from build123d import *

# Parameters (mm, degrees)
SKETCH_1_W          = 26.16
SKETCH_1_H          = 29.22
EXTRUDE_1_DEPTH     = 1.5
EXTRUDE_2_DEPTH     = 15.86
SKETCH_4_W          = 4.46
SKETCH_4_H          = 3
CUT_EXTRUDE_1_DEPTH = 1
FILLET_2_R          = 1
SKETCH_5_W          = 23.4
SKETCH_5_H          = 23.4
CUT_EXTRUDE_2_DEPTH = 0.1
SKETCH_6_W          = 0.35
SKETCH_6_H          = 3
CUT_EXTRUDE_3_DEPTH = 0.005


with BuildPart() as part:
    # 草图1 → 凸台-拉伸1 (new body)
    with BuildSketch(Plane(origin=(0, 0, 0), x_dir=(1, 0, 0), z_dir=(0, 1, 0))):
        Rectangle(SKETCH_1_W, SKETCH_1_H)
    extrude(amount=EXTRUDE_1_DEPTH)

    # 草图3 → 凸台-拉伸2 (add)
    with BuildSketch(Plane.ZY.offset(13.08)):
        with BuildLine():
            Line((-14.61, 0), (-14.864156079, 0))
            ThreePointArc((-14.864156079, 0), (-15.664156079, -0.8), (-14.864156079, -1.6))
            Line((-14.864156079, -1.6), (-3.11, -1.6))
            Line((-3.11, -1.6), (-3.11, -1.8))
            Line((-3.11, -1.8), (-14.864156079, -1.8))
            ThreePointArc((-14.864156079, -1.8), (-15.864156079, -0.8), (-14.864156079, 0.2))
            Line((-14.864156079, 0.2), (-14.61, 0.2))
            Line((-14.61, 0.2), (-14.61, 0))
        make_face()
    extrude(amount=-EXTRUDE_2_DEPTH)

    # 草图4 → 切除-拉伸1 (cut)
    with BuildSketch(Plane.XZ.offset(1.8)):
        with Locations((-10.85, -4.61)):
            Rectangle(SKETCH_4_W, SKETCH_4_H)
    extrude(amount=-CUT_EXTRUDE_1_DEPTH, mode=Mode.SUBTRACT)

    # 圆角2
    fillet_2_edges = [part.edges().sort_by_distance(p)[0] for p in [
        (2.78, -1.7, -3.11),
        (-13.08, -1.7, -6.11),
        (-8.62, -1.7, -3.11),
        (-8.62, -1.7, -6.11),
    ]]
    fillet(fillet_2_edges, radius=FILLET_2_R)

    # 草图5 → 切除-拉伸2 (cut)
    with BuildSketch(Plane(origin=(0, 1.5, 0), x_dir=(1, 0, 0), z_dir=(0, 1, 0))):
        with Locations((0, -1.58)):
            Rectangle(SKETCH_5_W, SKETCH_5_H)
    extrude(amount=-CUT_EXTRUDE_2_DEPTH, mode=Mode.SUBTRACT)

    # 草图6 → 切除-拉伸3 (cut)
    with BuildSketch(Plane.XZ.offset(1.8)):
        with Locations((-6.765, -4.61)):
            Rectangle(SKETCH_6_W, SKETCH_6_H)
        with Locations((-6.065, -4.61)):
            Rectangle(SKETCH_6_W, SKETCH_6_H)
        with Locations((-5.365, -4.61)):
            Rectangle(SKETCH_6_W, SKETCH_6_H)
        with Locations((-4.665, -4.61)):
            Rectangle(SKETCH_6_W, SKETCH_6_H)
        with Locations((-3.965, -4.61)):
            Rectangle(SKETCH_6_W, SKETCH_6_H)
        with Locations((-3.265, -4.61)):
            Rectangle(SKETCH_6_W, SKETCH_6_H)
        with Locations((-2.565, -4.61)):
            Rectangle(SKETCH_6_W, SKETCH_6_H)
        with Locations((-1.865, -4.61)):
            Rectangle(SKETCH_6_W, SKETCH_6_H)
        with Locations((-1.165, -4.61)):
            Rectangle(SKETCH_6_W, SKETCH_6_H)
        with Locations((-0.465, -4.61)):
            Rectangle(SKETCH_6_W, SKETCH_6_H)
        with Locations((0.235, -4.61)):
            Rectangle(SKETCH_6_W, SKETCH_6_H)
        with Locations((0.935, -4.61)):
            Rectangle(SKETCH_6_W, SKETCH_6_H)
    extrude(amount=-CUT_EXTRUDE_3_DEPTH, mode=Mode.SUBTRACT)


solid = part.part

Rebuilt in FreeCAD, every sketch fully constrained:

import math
import FreeCAD as App
import Part
import Sketcher
from FreeCAD import Vector
Q = App.Units.Quantity


def edges_at(feature, points):
    """Names of the edges that pass closest to the given points."""
    edges = feature.Shape.Edges
    near = lambda p: min(range(len(edges)), key=lambda i: edges[i].distToShape(Part.Vertex(*p))[0])
    return sorted({f"Edge{near(p) + 1}" for p in points})


def add_polygon(sketch, points):
    """Adds a closed chain of lines whose ends are joined by coincident constraints."""
    first, n = sketch.GeometryCount, len(points)
    for a, b in zip(points, points[1:] + points[:1]):
        sketch.addGeometry(Part.LineSegment(App.Vector(*a, 0), App.Vector(*b, 0)), False)
    for i in range(n):
        sketch.addConstraint(Sketcher.Constraint("Coincident", first + i, 2, first + (i + 1) % n, 1))

doc = App.newDocument("Part")
body = doc.addObject("PartDesign::Body", "Body")

# Sketch on XZ plane
sketch1 = doc.addObject("Sketcher::SketchObject", "Sketch")
body.addObject(sketch1)
sketch1.AttachmentSupport = (doc.XZ_Plane, [""])
sketch1.MapMode = "FlatFace"
add_polygon(sketch1, [(-13, -15), (-13, 15), (13, 15), (13, -15)])  # lines 0-3
sketch1.addConstraint([
    Sketcher.Constraint("Vertical", 0),
    Sketcher.Constraint("Horizontal", 1),
    Sketcher.Constraint("Vertical", 2),
    Sketcher.Constraint("Horizontal", 3),
    Sketcher.Constraint("Symmetric", 0, 2, 2, 2, -1, 1),
    Sketcher.Constraint("DistanceX", 1, 1, 1, 2, Q("26.16 mm")),
    Sketcher.Constraint("DistanceY", 0, 1, 0, 2, Q("29.22 mm")),
])
pad1 = doc.addObject("PartDesign::Pad", "Pad")
body.addObject(pad1)
pad1.Profile = sketch1
pad1.Length = 1.5
pad1.Reversed = True

# Sketch on YZ plane
sketch2 = doc.addObject("Sketcher::SketchObject", "Sketch001")
body.addObject(sketch2)
sketch2.AttachmentSupport = (doc.YZ_Plane, [""])
sketch2.MapMode = "FlatFace"
sketch2.AttachmentOffset = App.Placement(Vector(0, 0, -13.08), App.Rotation())
sketch2.addGeometry([
    Part.LineSegment(Vector(0, -14.86, 0), Vector(0, -14.61, 0)),  # 0
    Part.LineSegment(Vector(0, -14.61, 0), Vector(0.2, -14.61, 0)),  # 1
    Part.LineSegment(Vector(0.2, -14.61, 0), Vector(0.2, -14.86, 0)),  # 2
    Part.ArcOfCircle(Part.Circle(Vector(-0.8, -14.86, 0), Vector(0, 0, 1), 1), math.radians(180), math.radians(360)),  # 3
    Part.LineSegment(Vector(-1.8, -14.86, 0), Vector(-1.8, -3.11, 0)),  # 4
    Part.LineSegment(Vector(-1.8, -3.11, 0), Vector(-1.6, -3.11, 0)),  # 5
    Part.LineSegment(Vector(-1.6, -3.11, 0), Vector(-1.6, -14.86, 0)),  # 6
    Part.ArcOfCircle(Part.Circle(Vector(-0.8, -14.86, 0), Vector(0, 0, 1), 0.8), math.radians(180), math.radians(360)),  # 7
], False)
sketch2.addConstraint([
    Sketcher.Constraint("Coincident", 0, 2, 1, 1),
    Sketcher.Constraint("Coincident", 1, 2, 2, 1),
    Sketcher.Constraint("Tangent", 2, 2, 3, 2),
    Sketcher.Constraint("Tangent", 3, 1, 4, 1),
    Sketcher.Constraint("Coincident", 4, 2, 5, 1),
    Sketcher.Constraint("Coincident", 5, 2, 6, 1),
    Sketcher.Constraint("Tangent", 6, 2, 7, 1),
    Sketcher.Constraint("Tangent", 7, 2, 0, 1),
    Sketcher.Constraint("Vertical", 0),
    Sketcher.Constraint("Horizontal", 1),
    Sketcher.Constraint("Vertical", 2),
    Sketcher.Constraint("Vertical", 4),
    Sketcher.Constraint("Horizontal", 5),
    Sketcher.Constraint("Vertical", 6),
    Sketcher.Constraint("Coincident", 7, 3, 3, 3),
    Sketcher.Constraint("PointOnObject", 0, 2, -2),
    Sketcher.Constraint("Radius", 3, Q("1 mm")),
    Sketcher.Constraint("Radius", 7, Q("0.8 mm")),
    Sketcher.Constraint("DistanceY", 0, 2, 4, 2, Q("11.5 mm")),
    Sketcher.Constraint("DistanceY", 0, 2, -1, 1, Q("14.61 mm")),
    Sketcher.Constraint("DistanceY", 0, 1, 0, 2, Q("0.254156 mm")),
])
pad2 = doc.addObject("PartDesign::Pad", "Pad001")
body.addObject(pad2)
pad2.Profile = sketch2
pad2.Length = 15.86

# Sketch on XZ plane
sketch3 = doc.addObject("Sketcher::SketchObject", "Sketch002")
body.addObject(sketch3)
sketch3.AttachmentSupport = (doc.XZ_Plane, [""])
sketch3.MapMode = "FlatFace"
sketch3.AttachmentOffset = App.Placement(Vector(0, 0, 1.8), App.Rotation())
add_polygon(sketch3, [(-13.1, -3.1), (-13.1, -6.1), (-8.6, -6.1), (-8.6, -3.1)])  # lines 0-3
sketch3.addConstraint([
    Sketcher.Constraint("Vertical", 0),
    Sketcher.Constraint("Horizontal", 1),
    Sketcher.Constraint("Vertical", 2),
    Sketcher.Constraint("Horizontal", 3),
    Sketcher.Constraint("DistanceY", 0, 2, 0, 1, Q("3 mm")),
    Sketcher.Constraint("DistanceX", 1, 1, 1, 2, Q("4.46 mm")),
    Sketcher.Constraint("DistanceX", 0, 2, -1, 1, Q("13.08 mm")),
    Sketcher.Constraint("DistanceY", 0, 2, -1, 1, Q("6.11 mm")),
])
pocket1 = doc.addObject("PartDesign::Pocket", "Pocket")
body.addObject(pocket1)
pocket1.Profile = sketch3
pocket1.Length = 1
doc.recompute()

fillet = doc.addObject("PartDesign::Fillet", "Fillet")
body.addObject(fillet)
fillet.Base = (pocket1, edges_at(pocket1, [
    (2.78, -1.7, -3.11),
    (-13.08, -1.7, -6.11),
    (-8.62, -1.7, -3.11),
    (-8.62, -1.7, -6.11),
]))
fillet.Radius = 1

# Sketch on XZ plane
sketch4 = doc.addObject("Sketcher::SketchObject", "Sketch003")
body.addObject(sketch4)
sketch4.AttachmentSupport = (doc.XZ_Plane, [""])
sketch4.MapMode = "FlatFace"
sketch4.AttachmentOffset = App.Placement(Vector(0, 0, -1.5), App.Rotation())
add_polygon(sketch4, [(-12, -10), (-12, 13), (12, 13), (12, -10)])  # lines 0-3
sketch4.addConstraint([
    Sketcher.Constraint("Vertical", 0),
    Sketcher.Constraint("Horizontal", 1),
    Sketcher.Constraint("Vertical", 2),
    Sketcher.Constraint("Horizontal", 3),
    Sketcher.Constraint("Equal", 3, 0),
    Sketcher.Constraint("DistanceX", 1, 1, 1, 2, Q("23.4 mm")),
    Sketcher.Constraint("DistanceX", 0, 2, -1, 1, Q("11.7 mm")),
    Sketcher.Constraint("DistanceY", -1, 1, 0, 2, Q("13.28 mm")),
])
pocket2 = doc.addObject("PartDesign::Pocket", "Pocket001")
body.addObject(pocket2)
pocket2.Profile = sketch4
pocket2.Length = 0.1
pocket2.Reversed = True

# Sketch on XZ plane
sketch5 = doc.addObject("Sketcher::SketchObject", "Sketch004")
body.addObject(sketch5)
sketch5.AttachmentSupport = (doc.XZ_Plane, [""])
sketch5.MapMode = "FlatFace"
sketch5.AttachmentOffset = App.Placement(Vector(0, 0, 1.8), App.Rotation())
add_polygon(sketch5, [(-6.94, -3.11), (-6.94, -6.11), (-6.59, -6.11), (-6.59, -3.11)])  # lines 0-3
add_polygon(sketch5, [(-6.24, -3.11), (-6.24, -6.11), (-5.89, -6.11), (-5.89, -3.11)])  # lines 4-7
add_polygon(sketch5, [(-5.54, -3.11), (-5.54, -6.11), (-5.19, -6.11), (-5.19, -3.11)])  # lines 8-11
add_polygon(sketch5, [(-4.84, -3.11), (-4.84, -6.11), (-4.49, -6.11), (-4.49, -3.11)])  # lines 12-15
add_polygon(sketch5, [(-4.14, -3.11), (-4.14, -6.11), (-3.79, -6.11), (-3.79, -3.11)])  # lines 16-19
add_polygon(sketch5, [(-3.44, -3.11), (-3.44, -6.11), (-3.09, -6.11), (-3.09, -3.11)])  # lines 20-23
add_polygon(sketch5, [(-2.74, -3.11), (-2.74, -6.11), (-2.39, -6.11), (-2.39, -3.11)])  # lines 24-27
add_polygon(sketch5, [(-2.04, -3.11), (-2.04, -6.11), (-1.69, -6.11), (-1.69, -3.11)])  # lines 28-31
add_polygon(sketch5, [(-1.34, -3.11), (-1.34, -6.11), (-0.99, -6.11), (-0.99, -3.11)])  # lines 32-35
add_polygon(sketch5, [(-0.64, -3.11), (-0.64, -6.11), (-0.29, -6.11), (-0.29, -3.11)])  # lines 36-39
add_polygon(sketch5, [(0.06, -3.11), (0.06, -6.11), (0.41, -6.11), (0.41, -3.11)])  # lines 40-43
add_polygon(sketch5, [(0.76, -3.11), (0.76, -6.11), (1.11, -6.11), (1.11, -3.11)])  # lines 44-47
sketch5.addConstraint([
    Sketcher.Constraint("Vertical", 0),
    Sketcher.Constraint("Horizontal", 1),
    Sketcher.Constraint("Vertical", 2),
    Sketcher.Constraint("Horizontal", 3),
    Sketcher.Constraint("Vertical", 4),
    Sketcher.Constraint("Horizontal", 5),
    Sketcher.Constraint("Vertical", 6),
    Sketcher.Constraint("Horizontal", 7),
    Sketcher.Constraint("Vertical", 8),
    Sketcher.Constraint("Horizontal", 9),
    Sketcher.Constraint("Vertical", 10),
    Sketcher.Constraint("Horizontal", 11),
    Sketcher.Constraint("Vertical", 12),
    Sketcher.Constraint("Horizontal", 13),
    Sketcher.Constraint("Vertical", 14),
    Sketcher.Constraint("Horizontal", 15),
    Sketcher.Constraint("Vertical", 16),
    Sketcher.Constraint("Horizontal", 17),
    Sketcher.Constraint("Vertical", 18),
    Sketcher.Constraint("Horizontal", 19),
    Sketcher.Constraint("Vertical", 20),
    Sketcher.Constraint("Horizontal", 21),
    Sketcher.Constraint("Vertical", 22),
    Sketcher.Constraint("Horizontal", 23),
    Sketcher.Constraint("Vertical", 24),
    Sketcher.Constraint("Horizontal", 25),
    Sketcher.Constraint("Vertical", 26),
    Sketcher.Constraint("Horizontal", 27),
    Sketcher.Constraint("Vertical", 28),
    Sketcher.Constraint("Horizontal", 29),
    Sketcher.Constraint("Vertical", 30),
    Sketcher.Constraint("Horizontal", 31),
    Sketcher.Constraint("Vertical", 32),
    Sketcher.Constraint("Horizontal", 33),
    Sketcher.Constraint("Vertical", 34),
    Sketcher.Constraint("Horizontal", 35),
    Sketcher.Constraint("Vertical", 36),
    Sketcher.Constraint("Horizontal", 37),
    Sketcher.Constraint("Vertical", 38),
    Sketcher.Constraint("Horizontal", 39),
    Sketcher.Constraint("Vertical", 40),
    Sketcher.Constraint("Horizontal", 41),
    Sketcher.Constraint("Vertical", 42),
    Sketcher.Constraint("Horizontal", 43),
    Sketcher.Constraint("Vertical", 44),
    Sketcher.Constraint("Horizontal", 45),
    Sketcher.Constraint("Vertical", 46),
    Sketcher.Constraint("Horizontal", 47),
    Sketcher.Constraint("Horizontal", 1, 2, 4, 2),
    Sketcher.Constraint("Horizontal", 3, 2, 6, 2),
    Sketcher.Constraint("Horizontal", 5, 2, 8, 2),
    Sketcher.Constraint("Horizontal", 7, 2, 10, 2),
    Sketcher.Constraint("Horizontal", 9, 2, 12, 2),
    Sketcher.Constraint("Horizontal", 11, 2, 14, 2),
    Sketcher.Constraint("Horizontal", 13, 2, 16, 2),
    Sketcher.Constraint("Horizontal", 15, 2, 18, 2),
    Sketcher.Constraint("Horizontal", 17, 2, 20, 2),
    Sketcher.Constraint("Horizontal", 19, 2, 22, 2),
    Sketcher.Constraint("Horizontal", 21, 2, 24, 2),
    Sketcher.Constraint("Horizontal", 23, 2, 26, 2),
    Sketcher.Constraint("Horizontal", 25, 2, 28, 2),
    Sketcher.Constraint("Horizontal", 27, 2, 30, 2),
    Sketcher.Constraint("Horizontal", 29, 2, 32, 2),
    Sketcher.Constraint("Horizontal", 31, 2, 34, 2),
    Sketcher.Constraint("Horizontal", 33, 2, 36, 2),
    Sketcher.Constraint("Horizontal", 35, 2, 38, 2),
    Sketcher.Constraint("Horizontal", 37, 2, 40, 2),
    Sketcher.Constraint("Horizontal", 39, 2, 42, 2),
    Sketcher.Constraint("Horizontal", 41, 2, 44, 2),
    Sketcher.Constraint("Horizontal", 43, 2, 46, 2),
    Sketcher.Constraint("Equal", 3, 5),
    Sketcher.Constraint("Equal", 7, 9),
    Sketcher.Constraint("Equal", 11, 13),
    Sketcher.Constraint("Equal", 15, 17),
    Sketcher.Constraint("Equal", 19, 21),
    Sketcher.Constraint("Equal", 23, 25),
    Sketcher.Constraint("Equal", 27, 29),
    Sketcher.Constraint("Equal", 31, 33),
    Sketcher.Constraint("Equal", 35, 37),
    Sketcher.Constraint("Equal", 39, 41),
    Sketcher.Constraint("Equal", 43, 45),
    Sketcher.Constraint("DistanceY", 0, 2, 0, 1, Q("3 mm")),
    Sketcher.Constraint("DistanceX", 1, 1, 1, 2, Q("0.35 mm")),
    Sketcher.Constraint("DistanceX", 0, 2, 4, 2, Q("0.7 mm")),
    Sketcher.Constraint("DistanceX", 4, 2, 8, 2, Q("0.7 mm")),
    Sketcher.Constraint("DistanceX", 8, 2, 12, 2, Q("0.7 mm")),
    Sketcher.Constraint("DistanceX", 12, 2, 16, 2, Q("0.7 mm")),
    Sketcher.Constraint("DistanceX", 16, 2, 20, 2, Q("0.7 mm")),
    Sketcher.Constraint("DistanceX", 20, 2, 24, 2, Q("0.7 mm")),
    Sketcher.Constraint("DistanceX", 24, 2, 28, 2, Q("0.7 mm")),
    Sketcher.Constraint("DistanceX", 28, 2, 32, 2, Q("0.7 mm")),
    Sketcher.Constraint("DistanceX", 32, 2, 36, 2, Q("0.7 mm")),
    Sketcher.Constraint("DistanceX", 36, 2, 40, 2, Q("0.7 mm")),
    Sketcher.Constraint("DistanceX", 40, 2, 44, 2, Q("0.7 mm")),
    Sketcher.Constraint("DistanceX", 0, 2, -1, 1, Q("6.94 mm")),
    Sketcher.Constraint("DistanceY", 0, 2, -1, 1, Q("6.11 mm")),
])
pocket3 = doc.addObject("PartDesign::Pocket", "Pocket002")
body.addObject(pocket3)
pocket3.Profile = sketch5
pocket3.Length = 0.005

doc.recompute()
